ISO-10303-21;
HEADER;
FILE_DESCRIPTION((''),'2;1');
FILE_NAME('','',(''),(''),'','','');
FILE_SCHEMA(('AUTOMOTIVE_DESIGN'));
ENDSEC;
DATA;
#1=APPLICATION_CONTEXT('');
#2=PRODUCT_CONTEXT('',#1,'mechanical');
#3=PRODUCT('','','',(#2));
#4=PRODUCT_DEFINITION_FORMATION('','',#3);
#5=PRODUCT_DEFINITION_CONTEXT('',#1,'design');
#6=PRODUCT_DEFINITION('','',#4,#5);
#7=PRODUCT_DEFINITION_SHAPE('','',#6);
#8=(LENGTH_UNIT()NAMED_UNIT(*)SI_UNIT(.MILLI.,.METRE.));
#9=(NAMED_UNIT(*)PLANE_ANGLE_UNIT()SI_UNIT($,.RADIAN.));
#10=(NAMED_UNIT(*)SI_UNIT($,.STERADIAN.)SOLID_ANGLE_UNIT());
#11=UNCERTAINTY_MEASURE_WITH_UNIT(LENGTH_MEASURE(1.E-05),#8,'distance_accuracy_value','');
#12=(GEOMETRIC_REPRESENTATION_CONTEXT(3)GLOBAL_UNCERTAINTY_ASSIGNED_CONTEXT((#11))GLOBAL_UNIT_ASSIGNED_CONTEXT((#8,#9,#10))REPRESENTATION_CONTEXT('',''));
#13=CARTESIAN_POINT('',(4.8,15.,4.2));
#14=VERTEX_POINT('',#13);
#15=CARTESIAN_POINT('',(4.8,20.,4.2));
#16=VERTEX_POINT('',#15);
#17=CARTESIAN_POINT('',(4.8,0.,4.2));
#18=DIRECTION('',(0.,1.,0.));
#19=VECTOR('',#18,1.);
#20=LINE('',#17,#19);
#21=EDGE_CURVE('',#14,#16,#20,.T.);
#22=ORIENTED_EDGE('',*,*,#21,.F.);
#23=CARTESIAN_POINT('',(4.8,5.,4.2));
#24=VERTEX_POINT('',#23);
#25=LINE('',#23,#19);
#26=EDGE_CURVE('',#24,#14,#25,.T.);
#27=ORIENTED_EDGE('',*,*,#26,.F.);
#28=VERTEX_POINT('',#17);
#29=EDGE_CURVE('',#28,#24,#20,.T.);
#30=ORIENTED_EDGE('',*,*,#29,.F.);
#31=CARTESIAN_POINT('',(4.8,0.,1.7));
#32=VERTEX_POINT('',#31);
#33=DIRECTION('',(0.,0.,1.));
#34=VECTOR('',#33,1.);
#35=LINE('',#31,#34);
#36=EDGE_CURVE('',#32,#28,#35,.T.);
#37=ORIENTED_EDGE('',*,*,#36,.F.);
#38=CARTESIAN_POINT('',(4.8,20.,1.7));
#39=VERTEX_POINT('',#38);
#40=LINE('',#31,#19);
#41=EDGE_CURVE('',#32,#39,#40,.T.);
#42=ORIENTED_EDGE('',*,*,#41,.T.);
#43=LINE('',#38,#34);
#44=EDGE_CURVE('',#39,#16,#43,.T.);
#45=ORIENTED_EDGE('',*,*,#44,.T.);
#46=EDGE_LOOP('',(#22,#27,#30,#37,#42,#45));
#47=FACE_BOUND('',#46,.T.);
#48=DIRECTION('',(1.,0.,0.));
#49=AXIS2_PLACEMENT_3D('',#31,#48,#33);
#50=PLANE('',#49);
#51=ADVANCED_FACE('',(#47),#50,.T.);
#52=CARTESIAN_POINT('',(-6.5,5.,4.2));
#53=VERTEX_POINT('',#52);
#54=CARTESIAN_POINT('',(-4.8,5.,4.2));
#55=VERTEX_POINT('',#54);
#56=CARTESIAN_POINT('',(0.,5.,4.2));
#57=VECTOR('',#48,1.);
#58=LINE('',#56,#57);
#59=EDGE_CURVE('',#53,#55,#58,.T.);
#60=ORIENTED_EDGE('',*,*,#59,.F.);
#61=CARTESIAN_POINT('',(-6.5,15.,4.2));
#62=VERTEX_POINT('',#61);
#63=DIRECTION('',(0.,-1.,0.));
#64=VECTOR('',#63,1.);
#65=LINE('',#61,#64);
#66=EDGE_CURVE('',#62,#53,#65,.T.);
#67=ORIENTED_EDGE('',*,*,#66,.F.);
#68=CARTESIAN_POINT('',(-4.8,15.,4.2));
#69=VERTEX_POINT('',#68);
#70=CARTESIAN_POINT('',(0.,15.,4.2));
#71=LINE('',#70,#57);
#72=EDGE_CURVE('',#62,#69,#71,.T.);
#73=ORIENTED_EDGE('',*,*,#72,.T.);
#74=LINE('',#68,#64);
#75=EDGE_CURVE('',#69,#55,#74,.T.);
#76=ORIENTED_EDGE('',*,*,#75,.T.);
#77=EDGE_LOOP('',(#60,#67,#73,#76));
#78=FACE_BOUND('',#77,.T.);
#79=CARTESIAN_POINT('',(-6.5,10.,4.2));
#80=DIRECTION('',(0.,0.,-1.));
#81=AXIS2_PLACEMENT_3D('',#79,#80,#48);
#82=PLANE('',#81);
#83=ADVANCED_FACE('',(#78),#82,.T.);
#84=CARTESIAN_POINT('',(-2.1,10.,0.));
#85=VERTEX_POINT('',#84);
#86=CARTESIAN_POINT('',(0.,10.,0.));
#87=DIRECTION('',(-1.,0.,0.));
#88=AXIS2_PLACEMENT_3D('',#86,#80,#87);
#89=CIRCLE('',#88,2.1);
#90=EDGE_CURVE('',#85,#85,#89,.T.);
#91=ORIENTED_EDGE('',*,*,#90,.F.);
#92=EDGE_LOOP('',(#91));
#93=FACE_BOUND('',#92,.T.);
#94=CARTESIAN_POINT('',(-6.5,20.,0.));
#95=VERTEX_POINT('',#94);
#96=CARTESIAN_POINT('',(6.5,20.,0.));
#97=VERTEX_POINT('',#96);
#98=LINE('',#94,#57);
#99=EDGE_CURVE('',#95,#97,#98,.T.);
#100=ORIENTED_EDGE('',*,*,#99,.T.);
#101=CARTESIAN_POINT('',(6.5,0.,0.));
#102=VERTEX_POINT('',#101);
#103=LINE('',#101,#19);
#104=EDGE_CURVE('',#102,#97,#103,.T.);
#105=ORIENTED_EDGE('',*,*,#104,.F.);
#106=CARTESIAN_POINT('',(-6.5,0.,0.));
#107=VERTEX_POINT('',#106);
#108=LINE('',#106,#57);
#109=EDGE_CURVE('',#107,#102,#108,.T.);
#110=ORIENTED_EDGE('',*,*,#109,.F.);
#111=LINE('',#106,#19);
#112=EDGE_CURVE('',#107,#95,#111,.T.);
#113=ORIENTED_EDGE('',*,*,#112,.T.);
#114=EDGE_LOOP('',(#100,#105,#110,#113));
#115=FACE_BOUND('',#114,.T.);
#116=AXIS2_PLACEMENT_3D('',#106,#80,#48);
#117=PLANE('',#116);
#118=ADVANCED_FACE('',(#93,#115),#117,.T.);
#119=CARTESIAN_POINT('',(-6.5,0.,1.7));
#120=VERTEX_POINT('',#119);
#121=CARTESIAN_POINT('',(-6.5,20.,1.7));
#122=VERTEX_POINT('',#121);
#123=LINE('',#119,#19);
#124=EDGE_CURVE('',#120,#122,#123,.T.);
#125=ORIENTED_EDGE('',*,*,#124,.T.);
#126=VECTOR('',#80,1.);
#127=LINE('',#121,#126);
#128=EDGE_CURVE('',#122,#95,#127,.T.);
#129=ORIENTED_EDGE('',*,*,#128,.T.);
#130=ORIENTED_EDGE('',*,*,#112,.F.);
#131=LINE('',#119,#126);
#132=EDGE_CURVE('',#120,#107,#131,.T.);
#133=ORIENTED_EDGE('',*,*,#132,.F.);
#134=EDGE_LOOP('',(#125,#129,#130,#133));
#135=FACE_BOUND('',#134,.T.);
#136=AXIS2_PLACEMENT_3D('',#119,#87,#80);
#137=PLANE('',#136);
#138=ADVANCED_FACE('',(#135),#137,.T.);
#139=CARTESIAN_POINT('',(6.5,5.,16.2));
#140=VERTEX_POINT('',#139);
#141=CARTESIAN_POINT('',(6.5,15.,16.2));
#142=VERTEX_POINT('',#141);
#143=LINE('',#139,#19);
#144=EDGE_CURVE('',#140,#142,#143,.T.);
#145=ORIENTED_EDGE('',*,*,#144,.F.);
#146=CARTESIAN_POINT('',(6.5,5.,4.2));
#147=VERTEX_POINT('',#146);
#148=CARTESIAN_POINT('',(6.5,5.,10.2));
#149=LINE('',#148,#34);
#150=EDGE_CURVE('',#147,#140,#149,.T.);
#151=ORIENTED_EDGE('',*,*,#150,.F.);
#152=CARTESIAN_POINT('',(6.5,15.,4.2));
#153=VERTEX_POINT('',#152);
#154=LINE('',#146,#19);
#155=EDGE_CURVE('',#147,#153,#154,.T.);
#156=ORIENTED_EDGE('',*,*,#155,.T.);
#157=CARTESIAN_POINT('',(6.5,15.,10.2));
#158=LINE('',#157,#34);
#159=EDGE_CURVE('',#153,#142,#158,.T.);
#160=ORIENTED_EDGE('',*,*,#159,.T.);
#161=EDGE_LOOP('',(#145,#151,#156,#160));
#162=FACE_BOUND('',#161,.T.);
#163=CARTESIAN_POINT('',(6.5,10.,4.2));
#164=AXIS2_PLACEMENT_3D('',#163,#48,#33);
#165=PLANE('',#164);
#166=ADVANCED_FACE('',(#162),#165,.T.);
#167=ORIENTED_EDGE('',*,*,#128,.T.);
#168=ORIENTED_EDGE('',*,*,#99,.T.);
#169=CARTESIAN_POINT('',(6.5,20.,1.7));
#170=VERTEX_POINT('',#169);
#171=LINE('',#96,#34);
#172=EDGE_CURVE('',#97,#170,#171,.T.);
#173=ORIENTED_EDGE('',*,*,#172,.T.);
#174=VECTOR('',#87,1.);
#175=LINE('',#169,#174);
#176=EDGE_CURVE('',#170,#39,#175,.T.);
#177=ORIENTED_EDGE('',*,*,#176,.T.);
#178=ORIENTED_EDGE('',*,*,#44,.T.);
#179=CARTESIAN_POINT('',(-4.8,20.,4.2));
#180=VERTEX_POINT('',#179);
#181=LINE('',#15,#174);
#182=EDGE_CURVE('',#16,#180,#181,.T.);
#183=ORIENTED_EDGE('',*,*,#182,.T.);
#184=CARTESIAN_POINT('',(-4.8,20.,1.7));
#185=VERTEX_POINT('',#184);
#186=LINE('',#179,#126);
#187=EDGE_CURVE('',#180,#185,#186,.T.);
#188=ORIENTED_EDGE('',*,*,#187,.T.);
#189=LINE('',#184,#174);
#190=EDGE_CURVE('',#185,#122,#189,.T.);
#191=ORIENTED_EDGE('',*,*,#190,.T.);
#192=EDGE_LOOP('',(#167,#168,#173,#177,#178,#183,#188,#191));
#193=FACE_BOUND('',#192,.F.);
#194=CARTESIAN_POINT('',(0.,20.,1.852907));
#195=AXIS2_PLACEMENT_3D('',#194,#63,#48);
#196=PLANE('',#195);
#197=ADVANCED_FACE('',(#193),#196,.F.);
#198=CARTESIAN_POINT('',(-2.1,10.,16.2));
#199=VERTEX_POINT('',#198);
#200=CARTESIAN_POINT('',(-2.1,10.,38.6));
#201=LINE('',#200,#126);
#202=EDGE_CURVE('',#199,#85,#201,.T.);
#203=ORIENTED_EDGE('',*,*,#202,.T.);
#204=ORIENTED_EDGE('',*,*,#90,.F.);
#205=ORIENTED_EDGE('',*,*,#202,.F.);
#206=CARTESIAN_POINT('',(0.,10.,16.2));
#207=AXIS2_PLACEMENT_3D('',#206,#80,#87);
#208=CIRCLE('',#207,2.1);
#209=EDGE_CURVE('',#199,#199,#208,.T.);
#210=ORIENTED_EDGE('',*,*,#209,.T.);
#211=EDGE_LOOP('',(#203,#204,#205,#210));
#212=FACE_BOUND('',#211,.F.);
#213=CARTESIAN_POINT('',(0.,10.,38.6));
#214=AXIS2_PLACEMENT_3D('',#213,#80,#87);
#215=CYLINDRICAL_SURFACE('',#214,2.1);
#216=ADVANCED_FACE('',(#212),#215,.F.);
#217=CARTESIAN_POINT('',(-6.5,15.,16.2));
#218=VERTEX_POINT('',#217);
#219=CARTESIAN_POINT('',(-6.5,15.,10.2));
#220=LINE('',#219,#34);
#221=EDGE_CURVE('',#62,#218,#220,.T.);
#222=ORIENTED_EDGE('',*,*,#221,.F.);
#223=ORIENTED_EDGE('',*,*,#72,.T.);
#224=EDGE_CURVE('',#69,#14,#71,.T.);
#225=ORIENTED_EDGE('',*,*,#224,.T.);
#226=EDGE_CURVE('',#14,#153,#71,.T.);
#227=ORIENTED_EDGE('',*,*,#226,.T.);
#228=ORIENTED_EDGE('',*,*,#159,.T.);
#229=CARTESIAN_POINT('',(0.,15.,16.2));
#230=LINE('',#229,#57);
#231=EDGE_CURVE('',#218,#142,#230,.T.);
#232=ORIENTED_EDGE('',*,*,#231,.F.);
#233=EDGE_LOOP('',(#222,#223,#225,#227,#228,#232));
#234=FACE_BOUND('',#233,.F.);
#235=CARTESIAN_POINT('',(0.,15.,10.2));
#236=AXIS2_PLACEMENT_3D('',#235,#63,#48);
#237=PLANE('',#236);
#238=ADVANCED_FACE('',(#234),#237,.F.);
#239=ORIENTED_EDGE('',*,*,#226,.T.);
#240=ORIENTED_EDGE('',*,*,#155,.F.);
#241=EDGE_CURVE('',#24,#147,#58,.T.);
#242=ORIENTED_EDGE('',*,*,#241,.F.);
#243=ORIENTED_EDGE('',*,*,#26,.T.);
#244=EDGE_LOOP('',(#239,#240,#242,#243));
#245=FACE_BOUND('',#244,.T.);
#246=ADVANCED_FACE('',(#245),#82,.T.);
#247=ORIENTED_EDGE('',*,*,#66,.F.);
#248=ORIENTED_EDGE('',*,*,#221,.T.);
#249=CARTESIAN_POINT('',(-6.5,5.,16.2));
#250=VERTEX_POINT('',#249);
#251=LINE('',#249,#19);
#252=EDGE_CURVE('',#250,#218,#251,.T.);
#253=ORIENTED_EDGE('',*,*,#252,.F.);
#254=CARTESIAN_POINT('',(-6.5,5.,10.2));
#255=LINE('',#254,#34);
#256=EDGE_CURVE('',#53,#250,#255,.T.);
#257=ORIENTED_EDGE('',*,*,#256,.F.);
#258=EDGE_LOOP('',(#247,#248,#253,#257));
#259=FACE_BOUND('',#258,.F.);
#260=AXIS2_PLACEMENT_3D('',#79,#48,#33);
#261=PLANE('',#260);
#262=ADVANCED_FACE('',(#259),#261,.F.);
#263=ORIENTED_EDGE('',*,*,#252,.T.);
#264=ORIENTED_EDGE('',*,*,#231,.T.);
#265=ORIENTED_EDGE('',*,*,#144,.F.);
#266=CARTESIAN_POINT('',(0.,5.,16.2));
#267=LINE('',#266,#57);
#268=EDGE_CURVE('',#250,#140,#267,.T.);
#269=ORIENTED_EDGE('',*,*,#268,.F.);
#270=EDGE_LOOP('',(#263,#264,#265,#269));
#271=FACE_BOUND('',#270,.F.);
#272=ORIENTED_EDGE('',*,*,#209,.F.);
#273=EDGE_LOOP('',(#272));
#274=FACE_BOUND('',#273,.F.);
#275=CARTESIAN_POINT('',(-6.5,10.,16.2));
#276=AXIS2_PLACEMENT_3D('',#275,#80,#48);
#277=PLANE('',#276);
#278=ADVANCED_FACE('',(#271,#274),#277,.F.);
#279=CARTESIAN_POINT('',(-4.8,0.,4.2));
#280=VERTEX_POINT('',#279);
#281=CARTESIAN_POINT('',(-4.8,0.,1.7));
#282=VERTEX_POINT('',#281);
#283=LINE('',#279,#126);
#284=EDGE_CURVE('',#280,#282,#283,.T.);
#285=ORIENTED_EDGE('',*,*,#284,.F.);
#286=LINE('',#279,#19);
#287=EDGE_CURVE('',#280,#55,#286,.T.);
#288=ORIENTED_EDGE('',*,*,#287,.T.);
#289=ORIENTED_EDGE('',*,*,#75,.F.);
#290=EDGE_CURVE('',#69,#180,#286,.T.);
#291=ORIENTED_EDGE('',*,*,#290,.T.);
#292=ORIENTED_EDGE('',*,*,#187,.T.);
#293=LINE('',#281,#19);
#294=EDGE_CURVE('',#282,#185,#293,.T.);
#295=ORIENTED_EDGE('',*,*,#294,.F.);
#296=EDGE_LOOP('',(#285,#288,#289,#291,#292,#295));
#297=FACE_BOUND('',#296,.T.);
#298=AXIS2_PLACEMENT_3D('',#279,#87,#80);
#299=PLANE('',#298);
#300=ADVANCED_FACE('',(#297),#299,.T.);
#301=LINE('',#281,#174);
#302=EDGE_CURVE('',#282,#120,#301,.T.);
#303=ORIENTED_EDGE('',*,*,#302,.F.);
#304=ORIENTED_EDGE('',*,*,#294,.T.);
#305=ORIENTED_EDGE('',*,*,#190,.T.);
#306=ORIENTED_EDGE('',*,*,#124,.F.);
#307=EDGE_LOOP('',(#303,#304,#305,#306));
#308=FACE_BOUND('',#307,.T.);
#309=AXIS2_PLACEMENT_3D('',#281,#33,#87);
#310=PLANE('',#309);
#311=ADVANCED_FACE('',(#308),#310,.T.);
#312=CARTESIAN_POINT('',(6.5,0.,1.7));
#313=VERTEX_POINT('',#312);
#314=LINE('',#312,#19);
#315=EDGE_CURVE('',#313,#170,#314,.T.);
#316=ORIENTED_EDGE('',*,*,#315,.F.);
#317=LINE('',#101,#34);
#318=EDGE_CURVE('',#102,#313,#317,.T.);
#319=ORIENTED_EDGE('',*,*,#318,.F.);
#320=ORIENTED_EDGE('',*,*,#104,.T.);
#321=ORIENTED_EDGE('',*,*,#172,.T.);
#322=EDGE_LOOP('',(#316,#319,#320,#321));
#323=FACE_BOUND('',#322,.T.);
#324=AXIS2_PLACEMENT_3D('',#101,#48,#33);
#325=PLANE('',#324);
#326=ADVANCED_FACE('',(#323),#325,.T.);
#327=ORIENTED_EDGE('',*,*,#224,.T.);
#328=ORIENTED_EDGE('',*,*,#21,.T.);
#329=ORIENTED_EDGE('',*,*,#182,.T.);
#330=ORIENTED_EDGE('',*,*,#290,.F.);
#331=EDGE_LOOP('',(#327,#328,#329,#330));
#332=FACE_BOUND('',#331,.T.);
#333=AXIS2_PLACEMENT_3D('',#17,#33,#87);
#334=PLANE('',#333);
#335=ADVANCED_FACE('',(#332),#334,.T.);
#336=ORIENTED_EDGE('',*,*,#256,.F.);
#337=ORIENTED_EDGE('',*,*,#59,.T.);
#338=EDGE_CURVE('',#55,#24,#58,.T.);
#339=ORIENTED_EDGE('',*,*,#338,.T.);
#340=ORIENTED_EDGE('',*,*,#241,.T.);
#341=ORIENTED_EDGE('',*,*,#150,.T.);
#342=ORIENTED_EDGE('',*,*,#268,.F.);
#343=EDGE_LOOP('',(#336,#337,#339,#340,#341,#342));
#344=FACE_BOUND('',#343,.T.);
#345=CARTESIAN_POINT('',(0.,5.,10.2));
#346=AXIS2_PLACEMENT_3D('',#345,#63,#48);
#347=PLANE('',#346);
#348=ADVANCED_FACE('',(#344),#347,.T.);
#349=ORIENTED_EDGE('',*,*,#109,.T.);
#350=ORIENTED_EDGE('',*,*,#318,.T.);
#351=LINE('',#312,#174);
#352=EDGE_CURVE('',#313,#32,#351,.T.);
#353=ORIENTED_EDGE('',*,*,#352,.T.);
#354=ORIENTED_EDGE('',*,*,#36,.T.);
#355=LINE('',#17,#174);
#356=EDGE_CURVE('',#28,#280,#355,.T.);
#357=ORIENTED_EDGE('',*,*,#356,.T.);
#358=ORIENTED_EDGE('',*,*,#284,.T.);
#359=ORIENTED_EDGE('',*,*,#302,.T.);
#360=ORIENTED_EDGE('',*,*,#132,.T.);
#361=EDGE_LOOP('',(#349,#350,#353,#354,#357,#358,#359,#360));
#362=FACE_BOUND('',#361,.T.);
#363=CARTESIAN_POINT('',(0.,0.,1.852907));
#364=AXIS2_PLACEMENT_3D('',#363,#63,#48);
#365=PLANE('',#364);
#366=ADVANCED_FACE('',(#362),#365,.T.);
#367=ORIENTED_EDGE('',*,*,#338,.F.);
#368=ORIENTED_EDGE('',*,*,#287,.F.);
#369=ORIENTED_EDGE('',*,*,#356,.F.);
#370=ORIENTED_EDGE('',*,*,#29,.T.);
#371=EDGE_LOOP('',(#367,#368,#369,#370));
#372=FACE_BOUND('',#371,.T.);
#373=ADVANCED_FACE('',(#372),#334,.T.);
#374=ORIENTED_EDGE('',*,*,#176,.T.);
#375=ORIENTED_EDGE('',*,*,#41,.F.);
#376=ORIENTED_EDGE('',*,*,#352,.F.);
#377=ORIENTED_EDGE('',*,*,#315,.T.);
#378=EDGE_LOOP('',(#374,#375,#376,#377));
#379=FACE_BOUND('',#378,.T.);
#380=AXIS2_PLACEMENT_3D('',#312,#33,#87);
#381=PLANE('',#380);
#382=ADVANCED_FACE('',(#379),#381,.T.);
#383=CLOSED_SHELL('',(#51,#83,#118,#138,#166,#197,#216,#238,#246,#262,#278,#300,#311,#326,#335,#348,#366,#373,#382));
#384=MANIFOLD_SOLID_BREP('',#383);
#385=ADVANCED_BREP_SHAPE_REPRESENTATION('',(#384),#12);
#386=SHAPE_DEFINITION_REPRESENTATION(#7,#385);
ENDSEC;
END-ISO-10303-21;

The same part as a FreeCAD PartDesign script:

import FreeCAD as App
import Part
import Sketcher
from FreeCAD import Vector
Q = App.Units.Quantity


def add_polygon(sketch, points):
    """Adds a closed chain of lines whose ends are joined by coincident constraints."""
    first, n = sketch.GeometryCount, len(points)
    for a, b in zip(points, points[1:] + points[:1]):
        sketch.addGeometry(Part.LineSegment(App.Vector(*a, 0), App.Vector(*b, 0)), False)
    for i in range(n):
        sketch.addConstraint(Sketcher.Constraint("Coincident", first + i, 2, first + (i + 1) % n, 1))

doc = App.newDocument("Part")
body = doc.addObject("PartDesign::Body", "Body")

# Sketch on XZ plane
sketch1 = body.newObject("Sketcher::SketchObject", "Sketch")
sketch1.AttachmentSupport = (doc.getObject("XZ_Plane"), [""])
sketch1.MapMode = "FlatFace"
add_polygon(sketch1, [(-6.5, 0), (6.5, 0), (6.5, 1.7), (4.8, 1.7), (4.8, 4.2), (-4.8, 4.2), (-4.8, 1.7), (-6.5, 1.7)])  # lines 0-7
sketch1.addConstraint([
    Sketcher.Constraint("Horizontal", 0),
    Sketcher.Constraint("Vertical", 1),
    Sketcher.Constraint("Horizontal", 2),
    Sketcher.Constraint("Vertical", 3),
    Sketcher.Constraint("Horizontal", 4),
    Sketcher.Constraint("Vertical", 5),
    Sketcher.Constraint("Horizontal", 6),
    Sketcher.Constraint("Vertical", 7),
    Sketcher.Constraint("Symmetric", 0, 2, 7, 2, -1, 1),
    Sketcher.Constraint("Symmetric", 2, 2, 5, 2, -2),
    Sketcher.Constraint("Equal", 6, 1),
    Sketcher.Constraint("DistanceX", 0, 1, 0, 2, Q("13 mm")),
    Sketcher.Constraint("DistanceX", 2, 2, 2, 1, Q("1.7 mm")),
    Sketcher.Constraint("DistanceY", 3, 1, 3, 2, Q("2.5 mm")),
])
pad1 = body.newObject("PartDesign::Pad", "Pad")
pad1.Profile = sketch1
pad1.Length = 20
pad1.Reversed = True

# Sketch on XZ plane
sketch2 = body.newObject("Sketcher::SketchObject", "Sketch001")
sketch2.AttachmentSupport = (doc.getObject("XZ_Plane"), [""])
sketch2.MapMode = "FlatFace"
sketch2.AttachmentOffset = App.Placement(Vector(0, 0, -10), App.Rotation())
add_polygon(sketch2, [(-6.5, 16.2), (-6.5, 4.2), (6.5, 4.2), (6.5, 16.2)])  # lines 0-3
sketch2.addConstraint([
    Sketcher.Constraint("Vertical", 0),
    Sketcher.Constraint("Horizontal", 1),
    Sketcher.Constraint("Vertical", 2),
    Sketcher.Constraint("Horizontal", 3),
    Sketcher.Constraint("DistanceX", 1, 1, 1, 2, Q("13 mm")),
    Sketcher.Constraint("DistanceY", 0, 2, 0, 1, Q("12 mm")),
    Sketcher.Constraint("DistanceX", 0, 2, -1, 1, Q("6.5 mm")),
    Sketcher.Constraint("DistanceY", -1, 1, 0, 2, Q("4.2 mm")),
])
pad2 = body.newObject("PartDesign::Pad", "Pad001")
pad2.Profile = sketch2
pad2.Type = "TwoLengths"
pad2.Length = 5
pad2.Length2 = 5

# Sketch on XY plane
sketch3 = body.newObject("Sketcher::SketchObject", "Sketch002")
sketch3.AttachmentSupport = (doc.getObject("XY_Plane"), [""])
sketch3.MapMode = "FlatFace"
sketch3.AttachmentOffset = App.Placement(Vector(0, 0, 16.2), App.Rotation())
sketch3.addGeometry(Part.Circle(Vector(0, 10, 0), Vector(0, 0, 1), 2.1), False)
sketch3.addConstraint([
    Sketcher.Constraint("PointOnObject", 0, 3, -2),
    Sketcher.Constraint("Diameter", 0, Q("4.2 mm")),
    Sketcher.Constraint("DistanceY", -1, 1, 0, 3, Q("10 mm")),
])
doc.recompute()
hole = body.newObject("PartDesign::Hole", "Hole")
hole.Profile = sketch3
hole.ThreadType = "None"
hole.Diameter = 4.2
hole.DepthType = "Dimension"
hole.Depth = 22.4
hole.DrillPoint = "Angled"
hole.DrillPointAngle = 118

doc.recompute()
